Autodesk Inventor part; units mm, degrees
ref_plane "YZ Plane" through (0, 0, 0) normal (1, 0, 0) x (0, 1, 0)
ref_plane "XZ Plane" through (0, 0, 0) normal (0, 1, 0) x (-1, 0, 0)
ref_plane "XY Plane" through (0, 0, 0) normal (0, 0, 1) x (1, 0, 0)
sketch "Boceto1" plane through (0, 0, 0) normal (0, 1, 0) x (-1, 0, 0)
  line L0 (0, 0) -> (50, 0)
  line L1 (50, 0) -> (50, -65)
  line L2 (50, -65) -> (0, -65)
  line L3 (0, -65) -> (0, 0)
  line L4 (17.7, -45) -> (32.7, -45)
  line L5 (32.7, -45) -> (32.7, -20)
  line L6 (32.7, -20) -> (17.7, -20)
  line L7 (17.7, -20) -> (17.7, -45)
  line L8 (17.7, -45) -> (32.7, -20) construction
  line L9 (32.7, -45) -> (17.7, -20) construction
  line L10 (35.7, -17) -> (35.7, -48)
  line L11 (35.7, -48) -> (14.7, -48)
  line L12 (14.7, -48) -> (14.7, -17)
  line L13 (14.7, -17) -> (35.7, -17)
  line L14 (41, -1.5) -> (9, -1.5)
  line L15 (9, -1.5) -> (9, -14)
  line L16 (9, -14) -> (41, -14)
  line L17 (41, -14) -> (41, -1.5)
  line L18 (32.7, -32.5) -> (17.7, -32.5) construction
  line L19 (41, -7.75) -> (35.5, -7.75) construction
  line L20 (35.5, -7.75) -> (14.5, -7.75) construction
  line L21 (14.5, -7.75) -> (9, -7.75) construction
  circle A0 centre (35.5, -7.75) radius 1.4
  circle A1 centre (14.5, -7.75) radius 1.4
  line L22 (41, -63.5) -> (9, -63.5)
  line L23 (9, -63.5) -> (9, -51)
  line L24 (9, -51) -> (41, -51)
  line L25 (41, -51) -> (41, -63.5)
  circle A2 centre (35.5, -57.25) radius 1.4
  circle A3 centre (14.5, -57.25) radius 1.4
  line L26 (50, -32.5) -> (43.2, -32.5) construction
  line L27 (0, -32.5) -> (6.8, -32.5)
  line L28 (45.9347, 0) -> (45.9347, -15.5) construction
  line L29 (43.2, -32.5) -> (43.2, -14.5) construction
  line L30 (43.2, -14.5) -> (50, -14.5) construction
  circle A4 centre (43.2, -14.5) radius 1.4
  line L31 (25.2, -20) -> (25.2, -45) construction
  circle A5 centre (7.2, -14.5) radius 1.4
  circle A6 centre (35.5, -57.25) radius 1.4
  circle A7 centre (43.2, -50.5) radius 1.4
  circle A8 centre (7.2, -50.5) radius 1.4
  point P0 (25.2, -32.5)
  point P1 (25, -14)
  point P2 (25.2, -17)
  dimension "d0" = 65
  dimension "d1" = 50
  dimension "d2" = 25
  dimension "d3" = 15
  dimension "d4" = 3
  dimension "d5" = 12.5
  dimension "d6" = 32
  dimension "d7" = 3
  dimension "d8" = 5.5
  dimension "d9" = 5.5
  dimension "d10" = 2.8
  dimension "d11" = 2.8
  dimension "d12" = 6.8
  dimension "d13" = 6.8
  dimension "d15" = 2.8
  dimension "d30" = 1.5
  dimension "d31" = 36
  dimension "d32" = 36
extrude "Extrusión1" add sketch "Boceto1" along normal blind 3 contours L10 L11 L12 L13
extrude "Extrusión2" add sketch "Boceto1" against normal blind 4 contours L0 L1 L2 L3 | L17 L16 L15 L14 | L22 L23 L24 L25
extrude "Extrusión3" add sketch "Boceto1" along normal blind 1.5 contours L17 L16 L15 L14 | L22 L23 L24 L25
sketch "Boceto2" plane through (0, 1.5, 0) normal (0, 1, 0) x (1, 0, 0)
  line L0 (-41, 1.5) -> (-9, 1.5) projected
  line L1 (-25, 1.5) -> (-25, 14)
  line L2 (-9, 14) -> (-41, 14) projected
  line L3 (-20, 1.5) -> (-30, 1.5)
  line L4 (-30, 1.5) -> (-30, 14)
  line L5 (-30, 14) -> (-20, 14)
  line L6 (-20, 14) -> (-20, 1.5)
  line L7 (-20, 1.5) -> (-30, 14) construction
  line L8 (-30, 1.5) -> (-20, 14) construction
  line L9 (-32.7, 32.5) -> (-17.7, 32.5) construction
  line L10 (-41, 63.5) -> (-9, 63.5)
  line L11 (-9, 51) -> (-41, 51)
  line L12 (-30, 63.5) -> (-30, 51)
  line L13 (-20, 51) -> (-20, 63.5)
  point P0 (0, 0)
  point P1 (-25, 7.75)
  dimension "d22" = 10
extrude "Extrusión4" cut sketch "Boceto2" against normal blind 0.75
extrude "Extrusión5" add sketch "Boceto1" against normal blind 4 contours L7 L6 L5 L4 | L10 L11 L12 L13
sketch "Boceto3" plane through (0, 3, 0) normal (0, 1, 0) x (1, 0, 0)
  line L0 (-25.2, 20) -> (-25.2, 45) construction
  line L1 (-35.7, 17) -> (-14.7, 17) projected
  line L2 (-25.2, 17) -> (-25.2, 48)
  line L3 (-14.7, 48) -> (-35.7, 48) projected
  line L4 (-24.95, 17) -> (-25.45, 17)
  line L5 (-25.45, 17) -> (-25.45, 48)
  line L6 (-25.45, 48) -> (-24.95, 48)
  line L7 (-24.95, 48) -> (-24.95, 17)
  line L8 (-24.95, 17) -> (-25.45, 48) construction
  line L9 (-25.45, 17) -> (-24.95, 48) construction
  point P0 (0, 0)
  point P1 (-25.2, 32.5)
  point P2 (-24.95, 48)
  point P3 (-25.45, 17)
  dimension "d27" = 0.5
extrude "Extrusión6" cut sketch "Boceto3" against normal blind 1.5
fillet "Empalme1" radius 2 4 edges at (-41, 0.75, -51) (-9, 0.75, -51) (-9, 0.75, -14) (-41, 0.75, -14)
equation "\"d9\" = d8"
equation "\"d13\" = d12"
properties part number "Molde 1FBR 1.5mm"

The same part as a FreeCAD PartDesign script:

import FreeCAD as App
import Part
import Sketcher
from FreeCAD import Vector
Q = App.Units.Quantity


def edges_at(feature, points):
    """Names of the edges that pass closest to the given points."""
    edges = feature.Shape.Edges
    near = lambda p: min(range(len(edges)), key=lambda i: edges[i].distToShape(Part.Vertex(*p))[0])
    return sorted({f"Edge{near(p) + 1}" for p in points})


def add_polygon(sketch, points):
    """Adds a closed chain of lines whose ends are joined by coincident constraints."""
    first, n = sketch.GeometryCount, len(points)
    for a, b in zip(points, points[1:] + points[:1]):
        sketch.addGeometry(Part.LineSegment(App.Vector(*a, 0), App.Vector(*b, 0)), False)
    for i in range(n):
        sketch.addConstraint(Sketcher.Constraint("Coincident", first + i, 2, first + (i + 1) % n, 1))

doc = App.newDocument("Part")
body = doc.addObject("PartDesign::Body", "Body")
body.AllowCompound = True

# Sketch on XZ plane
sketch1 = body.newObject("Sketcher::SketchObject", "Sketch")
sketch1.AttachmentSupport = (doc.getObject("XZ_Plane"), [""])
sketch1.MapMode = "FlatFace"
add_polygon(sketch1, [(-35.7, -48), (-35.7, -17), (-14.7, -17), (-14.7, -48)])  # lines 0-3
add_polygon(sketch1, [(-32.7, -45), (-17.7, -45), (-17.7, -20), (-32.7, -20)])  # lines 4-7
sketch1.addConstraint(Sketcher.Constraint("Vertical", 0))
sketch1.addConstraint(Sketcher.Constraint("Horizontal", 1))
sketch1.addConstraint(Sketcher.Constraint("Vertical", 2))
sketch1.addConstraint(Sketcher.Constraint("Horizontal", 3))
sketch1.addConstraint(Sketcher.Constraint("Horizontal", 4))
sketch1.addConstraint(Sketcher.Constraint("Vertical", 5))
sketch1.addConstraint(Sketcher.Constraint("Horizontal", 6))
sketch1.addConstraint(Sketcher.Constraint("Vertical", 7))
sketch1.addConstraint(Sketcher.Constraint("DistanceX", 4, 1, 4, 2, Q("15 mm")))
sketch1.addConstraint(Sketcher.Constraint("DistanceY", 5, 1, 5, 2, Q("25 mm")))
sketch1.addConstraint(Sketcher.Constraint("DistanceX", 4, 2, 2, 2, Q("3 mm")))
sketch1.addConstraint(Sketcher.Constraint("DistanceY", 2, 2, 4, 2, Q("3 mm")))
sketch1.addConstraint(Sketcher.Constraint("DistanceY", 5, 2, 1, 2, Q("3 mm")))
sketch1.addConstraint(Sketcher.Constraint("DistanceX", 0, 2, 6, 2, Q("3 mm")))
sketch1.addConstraint(Sketcher.Constraint("DistanceY", 0, 2, -1, 1, Q("17 mm")))
sketch1.addConstraint(Sketcher.Constraint("DistanceX", 0, 2, -1, 1, Q("35.7 mm")))
pad1 = body.newObject("PartDesign::Pad", "Pad")
pad1.Profile = sketch1
pad1.Length = 3
pad1.Reversed = True

# Sketch on XZ plane
sketch2 = body.newObject("Sketcher::SketchObject", "Sketch001")
sketch2.AttachmentSupport = (doc.getObject("XZ_Plane"), [""])
sketch2.MapMode = "FlatFace"
add_polygon(sketch2, [(-50, 0), (0, 0), (0, -65), (-50, -65)])  # lines 0-3
sketch2.addGeometry(Part.Circle(Vector(-7.2, -50.5, 0), Vector(0, 0, 1), 1.4), False)  # 4
sketch2.addGeometry(Part.Circle(Vector(-43.2, -50.5, 0), Vector(0, 0, 1), 1.4), False)  # 5
sketch2.addGeometry(Part.Circle(Vector(-7.2, -14.5, 0), Vector(0, 0, 1), 1.4), False)  # 6
add_polygon(sketch2, [(-14.7, -17), (-35.7, -17), (-35.7, -48), (-14.7, -48)])  # lines 7-10
sketch2.addGeometry(Part.Circle(Vector(-43.2, -14.5, 0), Vector(0, 0, 1), 1.4), False)  # 11
sketch2.addGeometry(Part.Circle(Vector(-14.5, -57.25, 0), Vector(0, 0, 1), 1.4), False)  # 12
sketch2.addGeometry(Part.Circle(Vector(-35.5, -57.25, 0), Vector(0, 0, 1), 1.4), False)  # 13
sketch2.addGeometry(Part.Circle(Vector(-14.5, -7.75, 0), Vector(0, 0, 1), 1.4), False)  # 14
sketch2.addGeometry(Part.Circle(Vector(-35.5, -7.75, 0), Vector(0, 0, 1), 1.4), False)  # 15
sketch2.addConstraint(Sketcher.Constraint("Horizontal", 0))
sketch2.addConstraint(Sketcher.Constraint("Vertical", 1))
sketch2.addConstraint(Sketcher.Constraint("Horizontal", 2))
sketch2.addConstraint(Sketcher.Constraint("Vertical", 3))
sketch2.addConstraint(Sketcher.Constraint("Horizontal", 7))
sketch2.addConstraint(Sketcher.Constraint("Vertical", 8))
sketch2.addConstraint(Sketcher.Constraint("Horizontal", 9))
sketch2.addConstraint(Sketcher.Constraint("Vertical", 10))
sketch2.addConstraint(Sketcher.Constraint("Coincident", 0, 2, -1, 1))
sketch2.addConstraint(Sketcher.Constraint("Equal", 4, 5))
sketch2.addConstraint(Sketcher.Constraint("Equal", 5, 6))
sketch2.addConstraint(Sketcher.Constraint("Equal", 6, 11))
sketch2.addConstraint(Sketcher.Constraint("Equal", 11, 12))
sketch2.addConstraint(Sketcher.Constraint("Equal", 12, 13))
sketch2.addConstraint(Sketcher.Constraint("Equal", 13, 14))
sketch2.addConstraint(Sketcher.Constraint("Equal", 14, 15))
sketch2.addConstraint(Sketcher.Constraint("Horizontal", 4, 3, 5, 3))
sketch2.addConstraint(Sketcher.Constraint("Horizontal", 6, 3, 11, 3))
sketch2.addConstraint(Sketcher.Constraint("Horizontal", 12, 3, 13, 3))
sketch2.addConstraint(Sketcher.Constraint("Horizontal", 14, 3, 15, 3))
sketch2.addConstraint(Sketcher.Constraint("Vertical", 4, 3, 6, 3))
sketch2.addConstraint(Sketcher.Constraint("Vertical", 5, 3, 11, 3))
sketch2.addConstraint(Sketcher.Constraint("Vertical", 12, 3, 14, 3))
sketch2.addConstraint(Sketcher.Constraint("Vertical", 13, 3, 15, 3))
sketch2.addConstraint(Sketcher.Constraint("Diameter", 4, Q("2.8 mm")))
sketch2.addConstraint(Sketcher.Constraint("DistanceX", 0, 1, 0, 2, Q("50 mm")))
sketch2.addConstraint(Sketcher.Constraint("DistanceY", 1, 2, 1, 1, Q("65 mm")))
sketch2.addConstraint(Sketcher.Constraint("DistanceX", 5, 3, 4, 3, Q("36 mm")))
sketch2.addConstraint(Sketcher.Constraint("DistanceY", 4, 3, 6, 3, Q("36 mm")))
sketch2.addConstraint(Sketcher.Constraint("DistanceX", 2, 2, 5, 3, Q("6.8 mm")))
sketch2.addConstraint(Sketcher.Constraint("DistanceX", 7, 2, 7, 1, Q("21 mm")))
sketch2.addConstraint(Sketcher.Constraint("DistanceY", 8, 2, 8, 1, Q("31 mm")))
sketch2.addConstraint(Sketcher.Constraint("DistanceY", 7, 2, -1, 1, Q("17 mm")))
sketch2.addConstraint(Sketcher.Constraint("DistanceX", 13, 3, 12, 3, Q("21 mm")))
sketch2.addConstraint(Sketcher.Constraint("DistanceY", 4, 3, -1, 1, Q("50.5 mm")))
sketch2.addConstraint(Sketcher.Constraint("DistanceX", 12, 3, -1, 1, Q("14.5 mm")))
sketch2.addConstraint(Sketcher.Constraint("DistanceX", 7, 2, -1, 1, Q("35.7 mm")))
sketch2.addConstraint(Sketcher.Constraint("DistanceY", 12, 3, 14, 3, Q("49.5 mm")))
sketch2.addConstraint(Sketcher.Constraint("DistanceY", 12, 3, -1, 1, Q("57.25 mm")))
pad2 = body.newObject("PartDesign::Pad", "Pad001")
pad2.Profile = sketch2
pad2.Length = 4

# Sketch on XZ plane
sketch3 = body.newObject("Sketcher::SketchObject", "Sketch002")
sketch3.AttachmentSupport = (doc.getObject("XZ_Plane"), [""])
sketch3.MapMode = "FlatFace"
add_polygon(sketch3, [(-41, -14), (-41, -1.5), (-9, -1.5), (-9, -14)])  # lines 0-3
sketch3.addGeometry(Part.Circle(Vector(-14.5, -7.75, 0), Vector(0, 0, 1), 1.4), False)  # 4
sketch3.addGeometry(Part.Circle(Vector(-35.5, -7.75, 0), Vector(0, 0, 1), 1.4), False)  # 5
add_polygon(sketch3, [(-9, -63.5), (-41, -63.5), (-41, -51), (-9, -51)])  # lines 6-9
sketch3.addGeometry(Part.Circle(Vector(-14.5, -57.25, 0), Vector(0, 0, 1), 1.4), False)  # 10
sketch3.addGeometry(Part.Circle(Vector(-35.5, -57.25, 0), Vector(0, 0, 1), 1.4), False)  # 11
sketch3.addConstraint(Sketcher.Constraint("Vertical", 0))
sketch3.addConstraint(Sketcher.Constraint("Horizontal", 1))
sketch3.addConstraint(Sketcher.Constraint("Vertical", 2))
sketch3.addConstraint(Sketcher.Constraint("Horizontal", 3))
sketch3.addConstraint(Sketcher.Constraint("Horizontal", 6))
sketch3.addConstraint(Sketcher.Constraint("Vertical", 7))
sketch3.addConstraint(Sketcher.Constraint("Horizontal", 8))
sketch3.addConstraint(Sketcher.Constraint("Vertical", 9))
sketch3.addConstraint(Sketcher.Constraint("Equal", 4, 5))
sketch3.addConstraint(Sketcher.Constraint("Equal", 5, 10))
sketch3.addConstraint(Sketcher.Constraint("Equal", 10, 11))
sketch3.addConstraint(Sketcher.Constraint("Horizontal", 4, 3, 5, 3))
sketch3.addConstraint(Sketcher.Constraint("Horizontal", 10, 3, 11, 3))
sketch3.addConstraint(Sketcher.Constraint("Vertical", 4, 3, 10, 3))
sketch3.addConstraint(Sketcher.Constraint("Vertical", 5, 3, 11, 3))
sketch3.addConstraint(Sketcher.Constraint("Vertical", 3, 2, 6, 2))
sketch3.addConstraint(Sketcher.Constraint("Vertical", 2, 2, 8, 2))
sketch3.addConstraint(Sketcher.Constraint("Equal", 2, 7))
sketch3.addConstraint(Sketcher.Constraint("Diameter", 4, Q("2.8 mm")))
sketch3.addConstraint(Sketcher.Constraint("DistanceX", 1, 1, 1, 2, Q("32 mm")))
sketch3.addConstraint(Sketcher.Constraint("DistanceY", 0, 1, 0, 2, Q("12.5 mm")))
sketch3.addConstraint(Sketcher.Constraint("DistanceY", 0, 2, -1, 1, Q("1.5 mm")))
sketch3.addConstraint(Sketcher.Constraint("DistanceX", 0, 2, 5, 3, Q("5.5 mm")))
sketch3.addConstraint(Sketcher.Constraint("DistanceX", 4, 3, 1, 2, Q("5.5 mm")))
sketch3.addConstraint(Sketcher.Constraint("DistanceX", 0, 2, -1, 1, Q("41 mm")))
sketch3.addConstraint(Sketcher.Constraint("DistanceY", 7, 2, -1, 1, Q("51 mm")))
sketch3.addConstraint(Sketcher.Constraint("DistanceY", 10, 3, 4, 3, Q("49.5 mm")))
sketch3.addConstraint(Sketcher.Constraint("DistanceY", 4, 3, -1, 1, Q("7.75 mm")))
pad3 = body.newObject("PartDesign::Pad", "Pad002")
pad3.Profile = sketch3
pad3.Length = 1.5
pad3.Reversed = True

# Sketch on XZ plane
sketch4 = body.newObject("Sketcher::SketchObject", "Sketch003")
sketch4.AttachmentSupport = (doc.getObject("XZ_Plane"), [""])
sketch4.MapMode = "FlatFace"
sketch4.AttachmentOffset = App.Placement(Vector(0, 0, -1.5), App.Rotation())
add_polygon(sketch4, [(-30, -14), (-30, -1.5), (-20, -1.5), (-20, -14)])  # lines 0-3
add_polygon(sketch4, [(-20, -63.5), (-30, -63.5), (-30, -51), (-20, -51)])  # lines 4-7
sketch4.addConstraint(Sketcher.Constraint("Vertical", 0))
sketch4.addConstraint(Sketcher.Constraint("Horizontal", 1))
sketch4.addConstraint(Sketcher.Constraint("Vertical", 2))
sketch4.addConstraint(Sketcher.Constraint("Horizontal", 3))
sketch4.addConstraint(Sketcher.Constraint("Horizontal", 4))
sketch4.addConstraint(Sketcher.Constraint("Vertical", 5))
sketch4.addConstraint(Sketcher.Constraint("Horizontal", 6))
sketch4.addConstraint(Sketcher.Constraint("Vertical", 7))
sketch4.addConstraint(Sketcher.Constraint("Vertical", 3, 2, 4, 2))
sketch4.addConstraint(Sketcher.Constraint("Vertical", 2, 2, 6, 2))
sketch4.addConstraint(Sketcher.Constraint("Equal", 2, 5))
sketch4.addConstraint(Sketcher.Constraint("DistanceX", 1, 1, 1, 2, Q("10 mm")))
sketch4.addConstraint(Sketcher.Constraint("DistanceY", 0, 1, 0, 2, Q("12.5 mm")))
sketch4.addConstraint(Sketcher.Constraint("DistanceX", 0, 2, -1, 1, Q("30 mm")))
sketch4.addConstraint(Sketcher.Constraint("DistanceY", 2, 2, -1, 1, Q("14 mm")))
sketch4.addConstraint(Sketcher.Constraint("DistanceY", 5, 2, -1, 1, Q("51 mm")))
pocket1 = body.newObject("PartDesign::Pocket", "Pocket")
pocket1.Profile = sketch4
pocket1.Length = 0.75
pocket1.Reversed = True

# Sketch on XZ plane
sketch5 = body.newObject("Sketcher::SketchObject", "Sketch004")
sketch5.AttachmentSupport = (doc.getObject("XZ_Plane"), [""])
sketch5.MapMode = "FlatFace"
add_polygon(sketch5, [(-35.7, -48), (-35.7, -17), (-14.7, -17), (-14.7, -48)])  # lines 0-3
sketch5.addConstraint(Sketcher.Constraint("Vertical", 0))
sketch5.addConstraint(Sketcher.Constraint("Horizontal", 1))
sketch5.addConstraint(Sketcher.Constraint("Vertical", 2))
sketch5.addConstraint(Sketcher.Constraint("Horizontal", 3))
sketch5.addConstraint(Sketcher.Constraint("DistanceX", 1, 1, 1, 2, Q("21 mm")))
sketch5.addConstraint(Sketcher.Constraint("DistanceY", 0, 1, 0, 2, Q("31 mm")))
sketch5.addConstraint(Sketcher.Constraint("DistanceY", 0, 2, -1, 1, Q("17 mm")))
sketch5.addConstraint(Sketcher.Constraint("DistanceX", 0, 2, -1, 1, Q("35.7 mm")))
pad4 = body.newObject("PartDesign::Pad", "Pad003")
pad4.Profile = sketch5
pad4.Length = 4

# Sketch on XZ plane
sketch6 = body.newObject("Sketcher::SketchObject", "Sketch005")
sketch6.AttachmentSupport = (doc.getObject("XZ_Plane"), [""])
sketch6.MapMode = "FlatFace"
sketch6.AttachmentOffset = App.Placement(Vector(0, 0, -3), App.Rotation())
add_polygon(sketch6, [(-25.45, -48), (-25.45, -17), (-24.95, -17), (-24.95, -48)])  # lines 0-3
sketch6.addConstraint(Sketcher.Constraint("Vertical", 0))
sketch6.addConstraint(Sketcher.Constraint("Horizontal", 1))
sketch6.addConstraint(Sketcher.Constraint("Vertical", 2))
sketch6.addConstraint(Sketcher.Constraint("Horizontal", 3))
sketch6.addConstraint(Sketcher.Constraint("DistanceX", 1, 1, 1, 2, Q("0.5 mm")))
sketch6.addConstraint(Sketcher.Constraint("DistanceY", 0, 1, 0, 2, Q("31 mm")))
sketch6.addConstraint(Sketcher.Constraint("DistanceY", 0, 2, -1, 1, Q("17 mm")))
sketch6.addConstraint(Sketcher.Constraint("DistanceX", 0, 2, -1, 1, Q("25.45 mm")))
pocket2 = body.newObject("PartDesign::Pocket", "Pocket001")
pocket2.Profile = sketch6
pocket2.Length = 1.5
pocket2.Reversed = True
doc.recompute()

fillet = body.newObject("PartDesign::Fillet", "Fillet")
fillet.Base = (pocket2, edges_at(pocket2, [
    (-41, 0.75, -51),
    (-9, 0.75, -51),
    (-9, 0.75, -14),
    (-41, 0.75, -14),
]))
fillet.Radius = 2

doc.recompute()
